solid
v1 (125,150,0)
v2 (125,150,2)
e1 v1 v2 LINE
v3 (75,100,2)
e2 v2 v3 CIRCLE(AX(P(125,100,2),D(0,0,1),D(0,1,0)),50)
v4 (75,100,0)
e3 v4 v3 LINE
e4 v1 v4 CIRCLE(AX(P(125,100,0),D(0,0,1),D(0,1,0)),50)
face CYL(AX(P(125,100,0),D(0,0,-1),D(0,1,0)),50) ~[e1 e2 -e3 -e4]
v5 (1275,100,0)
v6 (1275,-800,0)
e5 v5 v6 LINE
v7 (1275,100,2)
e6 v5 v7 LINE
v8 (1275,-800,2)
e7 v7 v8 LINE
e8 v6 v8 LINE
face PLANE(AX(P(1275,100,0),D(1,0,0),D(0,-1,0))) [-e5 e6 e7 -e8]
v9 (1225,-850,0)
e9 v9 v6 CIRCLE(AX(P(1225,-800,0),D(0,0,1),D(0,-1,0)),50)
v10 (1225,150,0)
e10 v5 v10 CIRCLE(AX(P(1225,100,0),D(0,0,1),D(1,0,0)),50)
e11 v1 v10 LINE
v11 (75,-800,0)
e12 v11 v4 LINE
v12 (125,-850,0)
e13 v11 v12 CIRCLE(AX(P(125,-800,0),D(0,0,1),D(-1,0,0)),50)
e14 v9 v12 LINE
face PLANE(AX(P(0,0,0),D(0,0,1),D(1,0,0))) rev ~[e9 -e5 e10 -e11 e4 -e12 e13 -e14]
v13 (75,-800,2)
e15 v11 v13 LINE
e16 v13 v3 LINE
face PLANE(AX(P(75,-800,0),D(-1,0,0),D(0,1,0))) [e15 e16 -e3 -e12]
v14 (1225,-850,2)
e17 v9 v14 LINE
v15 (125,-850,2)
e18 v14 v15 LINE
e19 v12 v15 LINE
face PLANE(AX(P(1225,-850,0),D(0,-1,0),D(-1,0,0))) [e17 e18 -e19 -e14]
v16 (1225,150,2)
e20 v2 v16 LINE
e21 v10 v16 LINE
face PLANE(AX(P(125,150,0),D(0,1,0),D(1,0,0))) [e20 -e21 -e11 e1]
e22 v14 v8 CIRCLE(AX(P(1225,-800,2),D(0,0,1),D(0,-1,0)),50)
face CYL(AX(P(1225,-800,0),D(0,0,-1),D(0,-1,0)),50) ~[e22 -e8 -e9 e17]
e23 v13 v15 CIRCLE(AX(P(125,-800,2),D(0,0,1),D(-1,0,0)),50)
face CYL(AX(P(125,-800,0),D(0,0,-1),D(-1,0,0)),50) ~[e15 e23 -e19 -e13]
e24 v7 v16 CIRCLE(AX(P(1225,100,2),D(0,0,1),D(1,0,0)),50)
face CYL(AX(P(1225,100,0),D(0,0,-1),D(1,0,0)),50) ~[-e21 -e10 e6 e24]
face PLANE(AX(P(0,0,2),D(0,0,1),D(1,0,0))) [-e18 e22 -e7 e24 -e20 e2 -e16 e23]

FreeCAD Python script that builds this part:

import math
import FreeCAD as App
import Part
import Sketcher

doc = App.newDocument("Part")
body = doc.addObject("PartDesign::Body", "Body")

# Sketch on XY plane
sketch1 = body.newObject("Sketcher::SketchObject", "Sketch")
sketch1.AttachmentSupport = (doc.getObject("XY_Plane"), [""])
sketch1.MapMode = "FlatFace"
sketch1.addGeometry([
    Part.LineSegment(App.Vector(1225, 150, 0), App.Vector(125, 150, 0)),  # 0
    Part.ArcOfCircle(Part.Circle(App.Vector(125, 100, 0), App.Vector(0, 0, 1), 50), math.radians(90), math.radians(180)),  # 1
    Part.LineSegment(App.Vector(75, 100, 0), App.Vector(75, -800, 0)),  # 2
    Part.ArcOfCircle(Part.Circle(App.Vector(125, -800, 0), App.Vector(0, 0, 1), 50), math.radians(180), math.radians(270)),  # 3
    Part.LineSegment(App.Vector(125, -850, 0), App.Vector(1225, -850, 0)),  # 4
    Part.ArcOfCircle(Part.Circle(App.Vector(1225, -800, 0), App.Vector(0, 0, 1), 50), math.radians(-90), math.radians(0)),  # 5
    Part.LineSegment(App.Vector(1275, -800, 0), App.Vector(1275, 100, 0)),  # 6
    Part.ArcOfCircle(Part.Circle(App.Vector(1225, 100, 0), App.Vector(0, 0, 1), 50), math.radians(0), math.radians(90)),  # 7
], False)
sketch1.addConstraint([
    Sketcher.Constraint("Tangent", 0, 2, 1, 1),
    Sketcher.Constraint("Tangent", 1, 2, 2, 1),
    Sketcher.Constraint("Tangent", 2, 2, 3, 1),
    Sketcher.Constraint("Tangent", 3, 2, 4, 1),
    Sketcher.Constraint("Tangent", 4, 2, 5, 1),
    Sketcher.Constraint("Tangent", 5, 2, 6, 1),
    Sketcher.Constraint("Tangent", 6, 2, 7, 1),
    Sketcher.Constraint("Tangent", 7, 2, 0, 1),
    Sketcher.Constraint("Horizontal", 0),
    Sketcher.Constraint("Vertical", 2),
    Sketcher.Constraint("Horizontal", 4),
    Sketcher.Constraint("Vertical", 6),
    Sketcher.Constraint("Equal", 1, 3),
    Sketcher.Constraint("Equal", 3, 5),
    Sketcher.Constraint("Equal", 5, 7),
    Sketcher.Constraint("Radius", 1, 50.0),
    Sketcher.Constraint("DistanceY", 3, 2, 0, 2, 1000.0),
    Sketcher.Constraint("DistanceX", 0, 2, 0, 1, 1100.0),
    Sketcher.Constraint("DistanceX", -1, 1, 1, 3, 125.0),
    Sketcher.Constraint("DistanceY", -1, 1, 1, 3, 100.0),
])
pad1 = body.newObject("PartDesign::Pad", "Pad")
pad1.Profile = sketch1
pad1.Length = 2

doc.recompute()
